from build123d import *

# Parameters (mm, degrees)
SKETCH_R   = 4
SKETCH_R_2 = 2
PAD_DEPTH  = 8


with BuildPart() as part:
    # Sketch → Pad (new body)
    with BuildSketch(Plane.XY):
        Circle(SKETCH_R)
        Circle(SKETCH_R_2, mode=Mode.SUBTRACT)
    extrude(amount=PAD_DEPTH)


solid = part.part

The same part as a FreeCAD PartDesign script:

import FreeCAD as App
import Part
import Sketcher

doc = App.newDocument("Part")
params = doc.addObject("Spreadsheet::Sheet", "Params")
for row, (alias, value) in enumerate([
    ("sketch1_diameter", "8 mm"),
    ("sketch1_diameter2", "4 mm"),
    ("pad1_length", "8 mm"),
], start=1):
    params.set(f"A{row}", alias)
    params.set(f"B{row}", "=" + value)
    params.setAlias(f"B{row}", alias)

body = doc.addObject("PartDesign::Body", "Body")

# Sketch on XY plane
sketch1 = body.newObject("Sketcher::SketchObject", "Sketch")
sketch1.AttachmentSupport = (doc.getObject("XY_Plane"), [""])
sketch1.MapMode = "FlatFace"
sketch1.addGeometry([
    Part.Circle(App.Vector(0, 0, 0), App.Vector(0, 0, 1), 4),
    Part.Circle(App.Vector(0, 0, 0), App.Vector(0, 0, 1), 2),
], False)
sketch1.addConstraint([
    Sketcher.Constraint("Coincident", 0, 3, -1, 1),
    Sketcher.Constraint("Coincident", 1, 3, -1, 1),
    Sketcher.Constraint("Diameter", 0, 8.0),
    Sketcher.Constraint("Diameter", 1, 4.0),
])
sketch1.setExpression("Constraints[2]", "Params.sketch1_diameter")
sketch1.setExpression("Constraints[3]", "Params.sketch1_diameter2")
pad1 = body.newObject("PartDesign::Pad", "Pad")
pad1.Profile = sketch1
pad1.setExpression("Length", "Params.pad1_length")

doc.recompute()
